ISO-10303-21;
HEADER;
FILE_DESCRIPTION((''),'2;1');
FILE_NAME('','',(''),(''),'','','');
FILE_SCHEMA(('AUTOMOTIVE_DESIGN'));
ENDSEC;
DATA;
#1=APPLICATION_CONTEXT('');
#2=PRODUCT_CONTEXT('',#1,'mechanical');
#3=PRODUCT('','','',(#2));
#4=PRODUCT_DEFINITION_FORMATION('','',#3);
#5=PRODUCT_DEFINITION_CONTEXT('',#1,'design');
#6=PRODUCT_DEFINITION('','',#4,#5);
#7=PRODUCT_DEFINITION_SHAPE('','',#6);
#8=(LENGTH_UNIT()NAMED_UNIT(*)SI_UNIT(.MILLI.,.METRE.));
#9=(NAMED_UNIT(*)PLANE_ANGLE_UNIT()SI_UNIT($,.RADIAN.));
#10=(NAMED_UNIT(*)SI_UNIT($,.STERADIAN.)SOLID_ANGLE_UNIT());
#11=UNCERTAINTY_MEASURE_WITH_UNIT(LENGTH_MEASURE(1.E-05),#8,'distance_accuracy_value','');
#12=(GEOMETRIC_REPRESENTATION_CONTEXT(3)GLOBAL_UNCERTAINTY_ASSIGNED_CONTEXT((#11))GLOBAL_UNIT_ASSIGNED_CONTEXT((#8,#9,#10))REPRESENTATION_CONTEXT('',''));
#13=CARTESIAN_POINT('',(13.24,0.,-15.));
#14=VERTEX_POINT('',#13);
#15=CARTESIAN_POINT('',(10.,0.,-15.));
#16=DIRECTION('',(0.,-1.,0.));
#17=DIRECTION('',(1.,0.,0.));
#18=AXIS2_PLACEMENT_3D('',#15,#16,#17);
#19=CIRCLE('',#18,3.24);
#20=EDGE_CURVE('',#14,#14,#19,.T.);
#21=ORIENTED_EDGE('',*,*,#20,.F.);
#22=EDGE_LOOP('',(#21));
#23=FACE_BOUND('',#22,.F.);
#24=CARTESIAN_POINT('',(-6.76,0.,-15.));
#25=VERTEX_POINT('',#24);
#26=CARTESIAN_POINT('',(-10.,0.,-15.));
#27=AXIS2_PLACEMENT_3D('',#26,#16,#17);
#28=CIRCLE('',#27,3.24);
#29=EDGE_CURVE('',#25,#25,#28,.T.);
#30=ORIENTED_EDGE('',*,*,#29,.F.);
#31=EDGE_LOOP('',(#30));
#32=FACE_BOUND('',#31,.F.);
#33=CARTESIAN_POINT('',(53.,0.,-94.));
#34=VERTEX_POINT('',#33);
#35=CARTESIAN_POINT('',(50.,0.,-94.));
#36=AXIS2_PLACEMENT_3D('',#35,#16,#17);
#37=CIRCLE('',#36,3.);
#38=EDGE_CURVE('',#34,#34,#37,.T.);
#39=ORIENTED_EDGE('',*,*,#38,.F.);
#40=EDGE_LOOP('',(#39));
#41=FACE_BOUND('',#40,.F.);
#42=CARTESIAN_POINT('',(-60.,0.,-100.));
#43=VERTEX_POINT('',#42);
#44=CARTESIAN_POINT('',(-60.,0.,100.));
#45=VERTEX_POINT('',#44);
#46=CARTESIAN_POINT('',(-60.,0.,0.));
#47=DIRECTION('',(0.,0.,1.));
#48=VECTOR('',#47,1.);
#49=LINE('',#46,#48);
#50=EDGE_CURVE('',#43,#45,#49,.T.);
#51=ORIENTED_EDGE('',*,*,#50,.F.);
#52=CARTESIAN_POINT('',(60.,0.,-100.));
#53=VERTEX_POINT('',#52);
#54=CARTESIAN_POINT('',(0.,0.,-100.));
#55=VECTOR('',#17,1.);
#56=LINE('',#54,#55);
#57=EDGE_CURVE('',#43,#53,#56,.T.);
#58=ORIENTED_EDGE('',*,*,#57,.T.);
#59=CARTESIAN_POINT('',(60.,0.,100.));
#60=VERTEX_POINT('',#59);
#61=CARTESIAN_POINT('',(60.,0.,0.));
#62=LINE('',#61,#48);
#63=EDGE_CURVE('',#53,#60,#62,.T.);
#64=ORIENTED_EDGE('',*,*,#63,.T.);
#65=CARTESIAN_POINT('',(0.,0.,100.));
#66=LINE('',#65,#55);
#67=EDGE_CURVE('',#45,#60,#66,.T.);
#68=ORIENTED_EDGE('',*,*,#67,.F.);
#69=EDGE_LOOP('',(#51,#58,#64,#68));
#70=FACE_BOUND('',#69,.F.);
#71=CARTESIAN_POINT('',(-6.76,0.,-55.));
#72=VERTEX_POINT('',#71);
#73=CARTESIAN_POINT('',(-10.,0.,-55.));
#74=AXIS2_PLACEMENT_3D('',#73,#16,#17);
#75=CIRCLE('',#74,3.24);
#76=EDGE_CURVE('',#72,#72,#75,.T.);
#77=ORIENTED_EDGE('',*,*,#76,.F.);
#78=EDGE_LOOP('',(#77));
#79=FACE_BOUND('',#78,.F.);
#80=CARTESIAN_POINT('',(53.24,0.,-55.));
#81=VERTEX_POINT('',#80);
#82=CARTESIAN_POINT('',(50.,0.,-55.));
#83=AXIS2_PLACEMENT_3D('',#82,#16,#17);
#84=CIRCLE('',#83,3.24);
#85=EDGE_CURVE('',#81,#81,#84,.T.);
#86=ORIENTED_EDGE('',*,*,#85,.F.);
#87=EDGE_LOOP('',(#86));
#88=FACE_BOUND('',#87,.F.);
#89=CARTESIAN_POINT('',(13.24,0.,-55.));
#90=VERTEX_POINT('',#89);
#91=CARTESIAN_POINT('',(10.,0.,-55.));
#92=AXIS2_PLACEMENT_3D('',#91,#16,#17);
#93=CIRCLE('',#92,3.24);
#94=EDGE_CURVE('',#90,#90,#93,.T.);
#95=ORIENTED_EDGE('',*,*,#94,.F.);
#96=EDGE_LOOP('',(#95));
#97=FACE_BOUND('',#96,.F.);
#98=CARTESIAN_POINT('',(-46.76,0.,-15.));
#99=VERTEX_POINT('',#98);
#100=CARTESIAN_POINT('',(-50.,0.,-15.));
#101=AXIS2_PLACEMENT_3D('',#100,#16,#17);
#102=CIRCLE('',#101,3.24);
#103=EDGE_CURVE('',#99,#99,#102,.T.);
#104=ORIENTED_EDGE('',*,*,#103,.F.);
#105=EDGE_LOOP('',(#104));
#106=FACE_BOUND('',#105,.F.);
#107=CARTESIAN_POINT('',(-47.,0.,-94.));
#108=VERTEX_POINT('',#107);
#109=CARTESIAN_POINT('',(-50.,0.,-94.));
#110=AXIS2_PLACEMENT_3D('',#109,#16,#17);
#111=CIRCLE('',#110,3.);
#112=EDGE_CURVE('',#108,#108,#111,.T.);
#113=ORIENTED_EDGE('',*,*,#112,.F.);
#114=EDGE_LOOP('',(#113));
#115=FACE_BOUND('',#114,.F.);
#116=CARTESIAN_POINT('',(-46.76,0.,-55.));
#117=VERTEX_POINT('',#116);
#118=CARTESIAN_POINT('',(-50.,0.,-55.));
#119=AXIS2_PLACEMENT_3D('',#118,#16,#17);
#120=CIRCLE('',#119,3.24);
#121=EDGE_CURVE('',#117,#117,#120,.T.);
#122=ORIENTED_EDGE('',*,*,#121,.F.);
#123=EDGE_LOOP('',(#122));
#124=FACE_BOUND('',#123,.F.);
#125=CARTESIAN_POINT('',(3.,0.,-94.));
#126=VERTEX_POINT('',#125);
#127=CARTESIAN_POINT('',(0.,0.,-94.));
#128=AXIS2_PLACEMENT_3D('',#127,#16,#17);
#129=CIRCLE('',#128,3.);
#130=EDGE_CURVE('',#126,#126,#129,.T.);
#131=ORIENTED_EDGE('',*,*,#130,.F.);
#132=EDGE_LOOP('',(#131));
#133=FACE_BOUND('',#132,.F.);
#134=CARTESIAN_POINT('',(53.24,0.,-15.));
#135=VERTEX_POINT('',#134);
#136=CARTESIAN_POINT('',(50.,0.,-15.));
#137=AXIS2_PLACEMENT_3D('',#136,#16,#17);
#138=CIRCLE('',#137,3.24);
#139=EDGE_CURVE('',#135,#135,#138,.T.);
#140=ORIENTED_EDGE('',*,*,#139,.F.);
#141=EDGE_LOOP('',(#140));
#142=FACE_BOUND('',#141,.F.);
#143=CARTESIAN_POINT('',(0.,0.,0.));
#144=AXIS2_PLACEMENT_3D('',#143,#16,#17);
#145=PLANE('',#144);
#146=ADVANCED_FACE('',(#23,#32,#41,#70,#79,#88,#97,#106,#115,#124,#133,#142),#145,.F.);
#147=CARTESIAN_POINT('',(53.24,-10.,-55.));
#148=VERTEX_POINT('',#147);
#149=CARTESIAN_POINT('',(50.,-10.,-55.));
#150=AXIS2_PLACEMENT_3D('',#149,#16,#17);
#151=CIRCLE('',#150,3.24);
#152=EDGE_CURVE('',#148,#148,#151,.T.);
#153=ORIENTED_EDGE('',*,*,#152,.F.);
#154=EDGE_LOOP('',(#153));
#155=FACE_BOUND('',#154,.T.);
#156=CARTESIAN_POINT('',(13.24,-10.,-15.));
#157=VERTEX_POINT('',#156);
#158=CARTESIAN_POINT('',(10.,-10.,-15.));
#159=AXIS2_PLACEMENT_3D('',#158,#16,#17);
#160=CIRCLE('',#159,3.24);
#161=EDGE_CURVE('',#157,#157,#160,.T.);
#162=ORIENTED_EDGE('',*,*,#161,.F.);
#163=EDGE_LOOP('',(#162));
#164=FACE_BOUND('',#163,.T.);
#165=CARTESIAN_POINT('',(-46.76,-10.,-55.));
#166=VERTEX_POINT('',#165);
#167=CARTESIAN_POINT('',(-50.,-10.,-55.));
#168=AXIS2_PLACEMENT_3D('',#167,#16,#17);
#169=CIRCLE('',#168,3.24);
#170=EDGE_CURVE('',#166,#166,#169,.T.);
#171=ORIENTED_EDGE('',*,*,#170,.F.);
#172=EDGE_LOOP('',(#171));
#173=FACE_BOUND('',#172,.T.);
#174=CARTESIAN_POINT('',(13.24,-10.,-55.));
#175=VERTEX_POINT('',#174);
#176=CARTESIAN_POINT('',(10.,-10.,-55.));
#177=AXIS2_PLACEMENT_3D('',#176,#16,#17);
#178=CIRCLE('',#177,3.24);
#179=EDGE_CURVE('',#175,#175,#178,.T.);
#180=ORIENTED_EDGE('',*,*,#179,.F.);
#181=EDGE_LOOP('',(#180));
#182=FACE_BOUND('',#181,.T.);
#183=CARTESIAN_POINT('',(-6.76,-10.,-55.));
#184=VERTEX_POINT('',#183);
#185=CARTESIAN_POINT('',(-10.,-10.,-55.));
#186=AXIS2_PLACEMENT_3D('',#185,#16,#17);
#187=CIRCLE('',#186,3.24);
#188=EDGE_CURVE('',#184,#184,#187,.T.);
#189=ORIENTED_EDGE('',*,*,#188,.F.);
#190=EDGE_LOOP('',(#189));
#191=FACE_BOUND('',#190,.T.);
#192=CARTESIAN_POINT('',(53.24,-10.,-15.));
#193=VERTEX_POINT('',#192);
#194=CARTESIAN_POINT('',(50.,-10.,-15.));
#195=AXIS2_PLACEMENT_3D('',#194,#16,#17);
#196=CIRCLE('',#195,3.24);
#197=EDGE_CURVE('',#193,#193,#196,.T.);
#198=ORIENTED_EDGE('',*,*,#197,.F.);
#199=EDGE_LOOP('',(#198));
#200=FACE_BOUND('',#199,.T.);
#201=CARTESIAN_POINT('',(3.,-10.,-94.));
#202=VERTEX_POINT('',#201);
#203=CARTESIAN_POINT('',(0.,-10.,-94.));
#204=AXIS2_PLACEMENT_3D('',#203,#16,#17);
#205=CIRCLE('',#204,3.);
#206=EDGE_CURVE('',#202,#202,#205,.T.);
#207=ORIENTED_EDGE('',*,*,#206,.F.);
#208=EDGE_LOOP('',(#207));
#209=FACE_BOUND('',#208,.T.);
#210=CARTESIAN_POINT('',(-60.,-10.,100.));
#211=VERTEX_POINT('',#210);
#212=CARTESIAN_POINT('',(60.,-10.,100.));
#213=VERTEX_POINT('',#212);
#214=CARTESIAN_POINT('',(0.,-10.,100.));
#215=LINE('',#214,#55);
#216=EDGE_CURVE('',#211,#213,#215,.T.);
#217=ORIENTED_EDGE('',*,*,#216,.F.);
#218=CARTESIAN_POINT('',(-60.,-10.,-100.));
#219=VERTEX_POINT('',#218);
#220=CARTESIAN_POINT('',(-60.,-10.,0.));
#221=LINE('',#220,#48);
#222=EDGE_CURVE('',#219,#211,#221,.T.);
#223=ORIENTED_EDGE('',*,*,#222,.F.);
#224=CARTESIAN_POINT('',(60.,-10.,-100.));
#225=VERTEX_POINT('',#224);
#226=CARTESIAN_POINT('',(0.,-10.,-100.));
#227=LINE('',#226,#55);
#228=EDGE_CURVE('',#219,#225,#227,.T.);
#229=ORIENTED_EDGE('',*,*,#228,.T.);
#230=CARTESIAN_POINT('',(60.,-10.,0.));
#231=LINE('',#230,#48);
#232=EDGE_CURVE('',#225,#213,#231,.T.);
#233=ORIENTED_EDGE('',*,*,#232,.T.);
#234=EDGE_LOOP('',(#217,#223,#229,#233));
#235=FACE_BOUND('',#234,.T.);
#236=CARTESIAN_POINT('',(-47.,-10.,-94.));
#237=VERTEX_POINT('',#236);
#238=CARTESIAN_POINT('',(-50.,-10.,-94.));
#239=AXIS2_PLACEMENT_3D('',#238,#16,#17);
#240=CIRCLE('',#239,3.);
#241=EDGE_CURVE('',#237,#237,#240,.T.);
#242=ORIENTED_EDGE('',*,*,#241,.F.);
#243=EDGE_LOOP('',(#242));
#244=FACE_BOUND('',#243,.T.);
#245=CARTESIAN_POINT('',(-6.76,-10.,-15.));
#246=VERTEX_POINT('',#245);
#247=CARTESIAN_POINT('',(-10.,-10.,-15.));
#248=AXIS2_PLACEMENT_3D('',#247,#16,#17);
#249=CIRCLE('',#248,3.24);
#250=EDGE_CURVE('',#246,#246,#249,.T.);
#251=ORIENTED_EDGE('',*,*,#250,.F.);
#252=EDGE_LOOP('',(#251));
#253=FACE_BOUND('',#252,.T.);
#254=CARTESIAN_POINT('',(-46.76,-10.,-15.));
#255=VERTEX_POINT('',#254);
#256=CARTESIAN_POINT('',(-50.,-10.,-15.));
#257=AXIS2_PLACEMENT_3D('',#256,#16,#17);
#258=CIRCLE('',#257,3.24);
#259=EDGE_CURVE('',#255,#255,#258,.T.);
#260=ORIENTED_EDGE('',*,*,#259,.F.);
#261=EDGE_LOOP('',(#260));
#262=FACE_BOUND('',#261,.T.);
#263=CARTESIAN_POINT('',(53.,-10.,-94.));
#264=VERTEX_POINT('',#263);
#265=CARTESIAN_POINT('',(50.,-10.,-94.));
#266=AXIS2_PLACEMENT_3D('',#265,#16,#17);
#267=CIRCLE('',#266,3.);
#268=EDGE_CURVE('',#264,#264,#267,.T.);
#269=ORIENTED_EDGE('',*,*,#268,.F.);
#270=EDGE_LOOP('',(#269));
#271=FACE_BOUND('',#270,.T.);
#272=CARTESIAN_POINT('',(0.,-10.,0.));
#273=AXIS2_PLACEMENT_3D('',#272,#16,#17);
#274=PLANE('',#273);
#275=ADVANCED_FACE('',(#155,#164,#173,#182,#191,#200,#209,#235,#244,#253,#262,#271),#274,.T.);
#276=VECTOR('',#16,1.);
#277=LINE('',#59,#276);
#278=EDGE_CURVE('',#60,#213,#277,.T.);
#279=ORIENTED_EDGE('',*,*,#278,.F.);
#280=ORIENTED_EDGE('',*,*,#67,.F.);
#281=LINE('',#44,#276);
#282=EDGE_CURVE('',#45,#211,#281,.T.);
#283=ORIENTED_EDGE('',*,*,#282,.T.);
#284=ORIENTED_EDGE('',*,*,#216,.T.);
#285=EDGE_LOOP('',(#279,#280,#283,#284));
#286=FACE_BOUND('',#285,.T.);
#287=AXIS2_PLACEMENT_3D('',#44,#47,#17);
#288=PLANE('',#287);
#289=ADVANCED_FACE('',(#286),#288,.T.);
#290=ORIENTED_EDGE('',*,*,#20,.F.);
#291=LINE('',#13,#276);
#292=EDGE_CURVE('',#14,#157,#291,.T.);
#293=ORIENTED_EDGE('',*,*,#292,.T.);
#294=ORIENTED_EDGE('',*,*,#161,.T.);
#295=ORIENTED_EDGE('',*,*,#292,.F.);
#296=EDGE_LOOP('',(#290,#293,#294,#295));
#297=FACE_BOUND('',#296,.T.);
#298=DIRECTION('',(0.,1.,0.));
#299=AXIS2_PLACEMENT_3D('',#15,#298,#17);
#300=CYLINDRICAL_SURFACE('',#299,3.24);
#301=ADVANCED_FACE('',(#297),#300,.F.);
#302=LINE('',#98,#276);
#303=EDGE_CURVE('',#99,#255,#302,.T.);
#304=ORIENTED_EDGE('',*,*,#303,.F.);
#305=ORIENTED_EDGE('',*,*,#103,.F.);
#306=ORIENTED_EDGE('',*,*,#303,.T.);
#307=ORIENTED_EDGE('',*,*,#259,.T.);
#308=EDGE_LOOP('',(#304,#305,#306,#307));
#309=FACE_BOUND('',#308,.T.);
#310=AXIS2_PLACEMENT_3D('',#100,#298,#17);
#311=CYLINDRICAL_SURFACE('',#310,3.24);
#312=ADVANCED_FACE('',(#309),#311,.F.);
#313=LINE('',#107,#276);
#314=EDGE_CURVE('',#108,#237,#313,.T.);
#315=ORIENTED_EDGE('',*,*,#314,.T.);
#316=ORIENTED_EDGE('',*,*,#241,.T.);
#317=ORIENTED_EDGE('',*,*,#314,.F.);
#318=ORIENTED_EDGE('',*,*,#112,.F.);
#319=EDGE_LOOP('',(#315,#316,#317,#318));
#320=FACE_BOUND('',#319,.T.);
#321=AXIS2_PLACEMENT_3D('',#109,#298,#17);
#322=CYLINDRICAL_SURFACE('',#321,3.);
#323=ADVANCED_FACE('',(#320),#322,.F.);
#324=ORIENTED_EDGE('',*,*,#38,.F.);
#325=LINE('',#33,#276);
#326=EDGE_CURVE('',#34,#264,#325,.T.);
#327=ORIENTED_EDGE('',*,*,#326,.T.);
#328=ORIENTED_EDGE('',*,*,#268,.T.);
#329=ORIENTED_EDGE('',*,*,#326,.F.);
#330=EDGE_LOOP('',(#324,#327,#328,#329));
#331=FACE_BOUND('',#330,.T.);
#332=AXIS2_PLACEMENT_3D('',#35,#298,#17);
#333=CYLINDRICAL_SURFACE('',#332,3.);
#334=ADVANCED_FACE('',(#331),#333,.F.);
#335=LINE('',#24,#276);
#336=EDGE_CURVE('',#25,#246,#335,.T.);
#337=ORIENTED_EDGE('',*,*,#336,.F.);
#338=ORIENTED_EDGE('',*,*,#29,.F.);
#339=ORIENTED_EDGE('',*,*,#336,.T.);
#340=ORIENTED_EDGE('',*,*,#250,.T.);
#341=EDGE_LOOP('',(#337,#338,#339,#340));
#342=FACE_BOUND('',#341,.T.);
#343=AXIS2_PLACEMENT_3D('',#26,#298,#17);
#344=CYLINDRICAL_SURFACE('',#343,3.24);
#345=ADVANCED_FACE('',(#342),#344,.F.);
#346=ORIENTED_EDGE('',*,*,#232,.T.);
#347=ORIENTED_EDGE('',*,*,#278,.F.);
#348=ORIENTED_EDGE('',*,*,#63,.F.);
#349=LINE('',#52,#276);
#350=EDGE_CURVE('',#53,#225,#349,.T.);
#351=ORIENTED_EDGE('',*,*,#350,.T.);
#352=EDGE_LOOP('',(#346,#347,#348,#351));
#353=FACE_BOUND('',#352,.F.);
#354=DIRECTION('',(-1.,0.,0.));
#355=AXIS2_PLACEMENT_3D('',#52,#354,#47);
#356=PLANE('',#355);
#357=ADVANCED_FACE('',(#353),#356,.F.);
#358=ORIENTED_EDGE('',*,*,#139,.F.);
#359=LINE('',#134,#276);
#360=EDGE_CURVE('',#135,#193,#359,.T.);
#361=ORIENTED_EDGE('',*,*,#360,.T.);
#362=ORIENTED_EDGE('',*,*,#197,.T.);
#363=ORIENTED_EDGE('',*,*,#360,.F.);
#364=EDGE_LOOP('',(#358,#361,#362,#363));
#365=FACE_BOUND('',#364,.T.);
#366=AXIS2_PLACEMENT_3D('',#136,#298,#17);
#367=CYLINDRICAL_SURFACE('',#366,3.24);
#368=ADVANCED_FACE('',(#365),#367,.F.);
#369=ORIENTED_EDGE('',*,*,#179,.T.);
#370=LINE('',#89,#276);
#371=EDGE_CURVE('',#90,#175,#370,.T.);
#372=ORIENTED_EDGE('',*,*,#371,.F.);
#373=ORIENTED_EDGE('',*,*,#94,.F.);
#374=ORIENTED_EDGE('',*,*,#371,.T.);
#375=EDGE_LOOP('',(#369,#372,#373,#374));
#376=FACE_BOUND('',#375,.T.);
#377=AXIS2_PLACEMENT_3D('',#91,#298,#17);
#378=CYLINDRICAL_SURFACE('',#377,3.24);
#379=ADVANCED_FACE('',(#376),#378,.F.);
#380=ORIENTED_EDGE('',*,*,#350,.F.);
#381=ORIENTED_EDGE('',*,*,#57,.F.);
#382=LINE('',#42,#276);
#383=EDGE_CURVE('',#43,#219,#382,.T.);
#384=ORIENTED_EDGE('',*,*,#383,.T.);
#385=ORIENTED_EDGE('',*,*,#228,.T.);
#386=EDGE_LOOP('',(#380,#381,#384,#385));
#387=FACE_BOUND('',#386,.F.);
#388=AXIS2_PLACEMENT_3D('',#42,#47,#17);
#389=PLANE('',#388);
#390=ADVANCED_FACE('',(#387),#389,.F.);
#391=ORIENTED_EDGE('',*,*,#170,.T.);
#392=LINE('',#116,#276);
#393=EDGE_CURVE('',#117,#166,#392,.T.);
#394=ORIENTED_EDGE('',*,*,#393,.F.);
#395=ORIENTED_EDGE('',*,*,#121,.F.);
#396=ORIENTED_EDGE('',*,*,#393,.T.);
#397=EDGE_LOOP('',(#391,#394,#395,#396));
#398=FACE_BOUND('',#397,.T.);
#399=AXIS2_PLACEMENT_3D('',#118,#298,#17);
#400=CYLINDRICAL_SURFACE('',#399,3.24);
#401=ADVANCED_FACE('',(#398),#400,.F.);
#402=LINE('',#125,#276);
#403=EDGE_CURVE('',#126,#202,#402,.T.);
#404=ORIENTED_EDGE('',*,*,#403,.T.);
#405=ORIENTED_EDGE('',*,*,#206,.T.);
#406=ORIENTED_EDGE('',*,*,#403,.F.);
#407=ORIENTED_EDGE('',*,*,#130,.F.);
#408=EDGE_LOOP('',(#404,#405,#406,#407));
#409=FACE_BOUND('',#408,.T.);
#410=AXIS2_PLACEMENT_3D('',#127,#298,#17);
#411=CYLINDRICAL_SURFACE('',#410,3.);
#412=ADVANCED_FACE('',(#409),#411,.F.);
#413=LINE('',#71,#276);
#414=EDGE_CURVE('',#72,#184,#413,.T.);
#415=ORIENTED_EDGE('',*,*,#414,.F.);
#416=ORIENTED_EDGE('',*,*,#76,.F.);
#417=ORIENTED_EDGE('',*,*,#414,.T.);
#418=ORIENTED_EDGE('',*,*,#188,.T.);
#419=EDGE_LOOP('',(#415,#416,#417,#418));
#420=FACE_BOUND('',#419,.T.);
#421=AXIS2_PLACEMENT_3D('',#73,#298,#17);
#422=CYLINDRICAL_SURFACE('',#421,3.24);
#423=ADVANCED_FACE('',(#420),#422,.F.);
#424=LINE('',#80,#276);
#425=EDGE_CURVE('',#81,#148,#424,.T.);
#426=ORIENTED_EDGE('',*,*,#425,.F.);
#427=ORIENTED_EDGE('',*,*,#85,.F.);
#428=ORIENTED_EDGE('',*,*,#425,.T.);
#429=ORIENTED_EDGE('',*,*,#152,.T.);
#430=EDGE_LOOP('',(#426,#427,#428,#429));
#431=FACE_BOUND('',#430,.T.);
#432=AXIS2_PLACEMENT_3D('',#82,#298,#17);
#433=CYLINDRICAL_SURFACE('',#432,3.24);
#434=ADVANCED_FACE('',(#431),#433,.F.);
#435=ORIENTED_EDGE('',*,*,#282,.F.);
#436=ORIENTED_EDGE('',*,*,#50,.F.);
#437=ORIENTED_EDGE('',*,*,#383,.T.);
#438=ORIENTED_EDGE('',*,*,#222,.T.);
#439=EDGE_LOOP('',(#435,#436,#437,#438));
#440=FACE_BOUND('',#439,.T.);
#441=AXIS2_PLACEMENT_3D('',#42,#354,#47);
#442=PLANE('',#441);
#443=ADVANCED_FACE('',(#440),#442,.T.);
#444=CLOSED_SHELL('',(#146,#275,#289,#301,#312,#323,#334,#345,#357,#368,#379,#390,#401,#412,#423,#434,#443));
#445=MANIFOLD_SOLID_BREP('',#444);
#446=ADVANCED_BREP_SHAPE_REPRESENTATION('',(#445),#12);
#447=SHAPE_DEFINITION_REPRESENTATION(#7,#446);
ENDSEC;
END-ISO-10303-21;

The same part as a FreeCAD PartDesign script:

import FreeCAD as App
import Part
import Sketcher
from FreeCAD import Vector
Q = App.Units.Quantity

doc = App.newDocument("Part")
params = doc.addObject("Spreadsheet::Sheet", "Params")
for row, (alias, value) in enumerate([
    ("sketch1_diameter", "6 mm"),
    ("sketch1_diameter2", "6.48 mm"),
    ("sketch1_width", "120 mm"),
    ("sketch1_height", "200 mm"),
    ("pad1_length", "10 mm"),
], start=1):
    params.set(f"A{row}", alias)
    params.set(f"B{row}", "=" + value)
    params.setAlias(f"B{row}", alias)

body = doc.addObject("PartDesign::Body", "Body")

sketch1 = body.newObject("Sketcher::SketchObject", "Sketch")
sketch1.AttachmentSupport = (doc.getObject("XZ_Plane"), [""])
sketch1.MapMode = "FlatFace"
sketch1.addGeometry(Part.LineSegment(Vector(-60, 100, 0), Vector(-60, -100, 0)), False)
sketch1.addGeometry(Part.LineSegment(Vector(-60, -100, 0), Vector(60, -100, 0)), False)
sketch1.addGeometry(Part.LineSegment(Vector(60, -100, 0), Vector(60, 100, 0)), False)
sketch1.addGeometry(Part.LineSegment(Vector(60, 100, 0), Vector(-60, 100, 0)), False)
sketch1.addGeometry(Part.Circle(Vector(-50, -94, 0), Vector(0, 0, 1), 3), False)
sketch1.addGeometry(Part.Circle(Vector(-50, -55, 0), Vector(0, 0, 1), 3.2), False)
sketch1.addGeometry(Part.Circle(Vector(-10, -55, 0), Vector(0, 0, 1), 3.2), False)
sketch1.addGeometry(Part.Circle(Vector(0, -94, 0), Vector(0, 0, 1), 3), False)
sketch1.addGeometry(Part.Circle(Vector(50, -94, 0), Vector(0, 0, 1), 3), False)
sketch1.addGeometry(Part.Circle(Vector(10, -55, 0), Vector(0, 0, 1), 3.2), False)
sketch1.addGeometry(Part.Circle(Vector(50, -55, 0), Vector(0, 0, 1), 3.2), False)
sketch1.addGeometry(Part.Circle(Vector(-50, -15, 0), Vector(0, 0, 1), 3.2), False)
sketch1.addGeometry(Part.Circle(Vector(-10, -15, 0), Vector(0, 0, 1), 3.2), False)
sketch1.addGeometry(Part.Circle(Vector(10, -15, 0), Vector(0, 0, 1), 3.2), False)
sketch1.addGeometry(Part.Circle(Vector(50, -15, 0), Vector(0, 0, 1), 3.2), False)
sketch1.addConstraint(Sketcher.Constraint("Coincident", 0, 2, 1, 1))
sketch1.addConstraint(Sketcher.Constraint("Coincident", 1, 2, 2, 1))
sketch1.addConstraint(Sketcher.Constraint("Coincident", 2, 2, 3, 1))
sketch1.addConstraint(Sketcher.Constraint("Coincident", 3, 2, 0, 1))
sketch1.addConstraint(Sketcher.Constraint("Vertical", 0))
sketch1.addConstraint(Sketcher.Constraint("Horizontal", 1))
sketch1.addConstraint(Sketcher.Constraint("Vertical", 2))
sketch1.addConstraint(Sketcher.Constraint("Horizontal", 3))
sketch1.addConstraint(Sketcher.Constraint("Equal", 5, 6))
sketch1.addConstraint(Sketcher.Constraint("Equal", 4, 7))
sketch1.addConstraint(Sketcher.Constraint("Equal", 7, 8))
sketch1.addConstraint(Sketcher.Constraint("Equal", 6, 9))
sketch1.addConstraint(Sketcher.Constraint("Equal", 9, 10))
sketch1.addConstraint(Sketcher.Constraint("Equal", 10, 11))
sketch1.addConstraint(Sketcher.Constraint("Equal", 11, 12))
sketch1.addConstraint(Sketcher.Constraint("Equal", 12, 13))
sketch1.addConstraint(Sketcher.Constraint("Equal", 13, 14))
sketch1.addConstraint(Sketcher.Constraint("Symmetric", 0, 2, 2, 2, -1, 1))
sketch1.addConstraint(Sketcher.Constraint("Symmetric", 4, 3, 8, 3, -2))
sketch1.addConstraint(Sketcher.Constraint("Symmetric", 6, 3, 9, 3, -2))
sketch1.addConstraint(Sketcher.Constraint("Symmetric", 5, 3, 10, 3, -2))
sketch1.addConstraint(Sketcher.Constraint("Symmetric", 12, 3, 13, 3, -2))
sketch1.addConstraint(Sketcher.Constraint("Symmetric", 11, 3, 14, 3, -2))
sketch1.addConstraint(Sketcher.Constraint("PointOnObject", 7, 3, -2))
sketch1.addConstraint(Sketcher.Constraint("Horizontal", 5, 3, 6, 3))
sketch1.addConstraint(Sketcher.Constraint("Horizontal", 4, 3, 7, 3))
sketch1.addConstraint(Sketcher.Constraint("Horizontal", 11, 3, 12, 3))
sketch1.addConstraint(Sketcher.Constraint("Vertical", 4, 3, 5, 3))
sketch1.addConstraint(Sketcher.Constraint("Vertical", 5, 3, 11, 3))
sketch1.addConstraint(Sketcher.Constraint("Vertical", 6, 3, 12, 3))
sketch1.addConstraint(Sketcher.Constraint("Diameter", 4, Q("6 mm")))
sketch1.addConstraint(Sketcher.Constraint("Diameter", 5, Q("6.48 mm")))
sketch1.addConstraint(Sketcher.Constraint("DistanceX", 1, 1, 1, 2, Q("120 mm")))
sketch1.addConstraint(Sketcher.Constraint("DistanceY", 0, 2, 0, 1, Q("200 mm")))
sketch1.addConstraint(Sketcher.Constraint("DistanceX", 4, 3, -1, 1, Q("50 mm")))
sketch1.addConstraint(Sketcher.Constraint("DistanceY", 4, 3, -1, 1, Q("94 mm")))
sketch1.addConstraint(Sketcher.Constraint("DistanceY", 5, 3, -1, 1, Q("55 mm")))
sketch1.addConstraint(Sketcher.Constraint("DistanceX", 6, 3, -1, 1, Q("10 mm")))
sketch1.addConstraint(Sketcher.Constraint("DistanceY", 11, 3, -1, 1, Q("15 mm")))
sketch1.setExpression("Constraints[30]", "Params.sketch1_diameter")
sketch1.setExpression("Constraints[31]", "Params.sketch1_diameter2")
sketch1.setExpression("Constraints[32]", "Params.sketch1_width")
sketch1.setExpression("Constraints[33]", "Params.sketch1_height")
pad1 = body.newObject("PartDesign::Pad", "Pad")
pad1.Profile = sketch1
pad1.setExpression("Length", "Params.pad1_length")

doc.recompute()
